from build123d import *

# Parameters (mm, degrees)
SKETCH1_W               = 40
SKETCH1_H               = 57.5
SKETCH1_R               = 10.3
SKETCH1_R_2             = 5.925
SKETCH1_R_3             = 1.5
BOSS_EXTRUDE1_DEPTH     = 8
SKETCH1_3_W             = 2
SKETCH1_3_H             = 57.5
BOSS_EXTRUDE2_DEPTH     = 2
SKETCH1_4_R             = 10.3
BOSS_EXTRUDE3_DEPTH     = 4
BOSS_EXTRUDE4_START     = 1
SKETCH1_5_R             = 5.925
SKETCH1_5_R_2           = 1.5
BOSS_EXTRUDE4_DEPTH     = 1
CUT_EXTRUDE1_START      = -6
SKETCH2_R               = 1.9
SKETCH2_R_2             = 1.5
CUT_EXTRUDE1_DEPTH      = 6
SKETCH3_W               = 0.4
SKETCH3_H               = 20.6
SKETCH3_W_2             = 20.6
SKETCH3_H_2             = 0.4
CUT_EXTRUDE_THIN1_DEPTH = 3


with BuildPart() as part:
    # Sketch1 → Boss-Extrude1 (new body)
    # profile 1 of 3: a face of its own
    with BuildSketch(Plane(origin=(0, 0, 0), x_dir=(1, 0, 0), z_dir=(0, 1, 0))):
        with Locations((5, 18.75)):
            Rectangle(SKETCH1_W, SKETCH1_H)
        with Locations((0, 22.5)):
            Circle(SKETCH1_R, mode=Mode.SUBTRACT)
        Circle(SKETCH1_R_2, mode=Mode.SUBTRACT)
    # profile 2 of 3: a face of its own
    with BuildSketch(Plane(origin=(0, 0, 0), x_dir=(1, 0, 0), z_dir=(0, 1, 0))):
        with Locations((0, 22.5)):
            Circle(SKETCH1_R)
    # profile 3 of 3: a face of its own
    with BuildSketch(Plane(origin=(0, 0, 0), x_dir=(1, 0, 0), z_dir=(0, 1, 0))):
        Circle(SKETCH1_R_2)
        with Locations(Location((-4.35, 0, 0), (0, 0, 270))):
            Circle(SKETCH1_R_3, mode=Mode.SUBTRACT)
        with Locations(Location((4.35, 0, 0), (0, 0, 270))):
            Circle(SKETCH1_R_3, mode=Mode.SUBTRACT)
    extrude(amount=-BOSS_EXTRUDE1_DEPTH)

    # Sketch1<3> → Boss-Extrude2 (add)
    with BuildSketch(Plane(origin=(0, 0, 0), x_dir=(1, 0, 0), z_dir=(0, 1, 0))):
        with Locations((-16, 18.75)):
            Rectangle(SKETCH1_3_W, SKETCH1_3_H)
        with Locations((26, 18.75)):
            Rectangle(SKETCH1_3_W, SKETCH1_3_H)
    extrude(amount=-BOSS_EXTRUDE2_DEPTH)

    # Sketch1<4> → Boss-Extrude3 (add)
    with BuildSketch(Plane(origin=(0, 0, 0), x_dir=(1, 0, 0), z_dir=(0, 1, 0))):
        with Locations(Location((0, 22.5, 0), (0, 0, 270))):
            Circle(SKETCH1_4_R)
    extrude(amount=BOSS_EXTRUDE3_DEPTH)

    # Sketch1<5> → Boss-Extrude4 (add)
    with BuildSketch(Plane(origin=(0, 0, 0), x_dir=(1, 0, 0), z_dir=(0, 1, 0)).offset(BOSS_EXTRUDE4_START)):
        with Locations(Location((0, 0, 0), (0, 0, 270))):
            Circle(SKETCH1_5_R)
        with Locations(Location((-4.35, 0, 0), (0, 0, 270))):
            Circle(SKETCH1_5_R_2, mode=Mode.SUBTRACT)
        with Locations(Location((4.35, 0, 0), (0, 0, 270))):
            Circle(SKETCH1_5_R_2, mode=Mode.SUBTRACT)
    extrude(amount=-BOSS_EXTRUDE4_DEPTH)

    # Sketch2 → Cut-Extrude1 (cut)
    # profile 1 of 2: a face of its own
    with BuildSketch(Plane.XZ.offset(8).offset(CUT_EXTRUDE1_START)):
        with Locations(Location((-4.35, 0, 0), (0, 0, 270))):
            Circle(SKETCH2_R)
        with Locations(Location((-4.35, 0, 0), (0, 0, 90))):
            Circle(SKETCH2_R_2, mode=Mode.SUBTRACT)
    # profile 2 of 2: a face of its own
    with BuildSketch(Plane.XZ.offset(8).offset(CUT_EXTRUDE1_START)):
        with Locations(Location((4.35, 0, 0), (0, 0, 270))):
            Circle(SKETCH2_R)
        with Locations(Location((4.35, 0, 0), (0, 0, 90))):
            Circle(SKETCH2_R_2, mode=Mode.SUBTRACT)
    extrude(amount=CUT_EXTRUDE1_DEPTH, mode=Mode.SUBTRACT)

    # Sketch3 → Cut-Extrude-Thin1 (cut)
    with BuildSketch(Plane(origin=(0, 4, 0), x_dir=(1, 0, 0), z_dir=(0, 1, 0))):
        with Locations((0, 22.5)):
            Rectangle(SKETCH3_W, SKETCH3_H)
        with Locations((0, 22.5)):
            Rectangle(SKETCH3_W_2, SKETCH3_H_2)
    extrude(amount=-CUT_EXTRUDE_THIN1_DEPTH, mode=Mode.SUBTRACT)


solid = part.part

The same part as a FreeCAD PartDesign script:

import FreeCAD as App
import Part
import Sketcher

V = App.Vector


def add_polygon(sketch, points):
    """Adds a closed chain of lines whose ends are joined by coincident constraints."""
    first, n = sketch.GeometryCount, len(points)
    for a, b in zip(points, points[1:] + points[:1]):
        sketch.addGeometry(Part.LineSegment(App.Vector(*a, 0), App.Vector(*b, 0)), False)
    for i in range(n):
        sketch.addConstraint(Sketcher.Constraint("Coincident", first + i, 2, first + (i + 1) % n, 1))

doc = App.newDocument("Part")
body = doc.addObject("PartDesign::Body", "Body")

# Sketch on XZ plane
sketch1 = body.newObject("Sketcher::SketchObject", "Sketch")
sketch1.AttachmentSupport = (doc.getObject("XZ_Plane"), [""])
sketch1.MapMode = "FlatFace"
add_polygon(sketch1, [(-15, -47.5), (-15, 10), (25, 10), (25, -47.5)])  # lines 0-3
sketch1.addGeometry(Part.Circle(V(4.3, 0, 0), V(0, 0, 1), 1.5), False)  # 4
sketch1.addGeometry(Part.Circle(V(-4.3, 0, 0), V(0, 0, 1), 1.5), False)  # 5
sketch1.addConstraint(Sketcher.Constraint("Vertical", 0))
sketch1.addConstraint(Sketcher.Constraint("Horizontal", 1))
sketch1.addConstraint(Sketcher.Constraint("Vertical", 2))
sketch1.addConstraint(Sketcher.Constraint("Horizontal", 3))
sketch1.addConstraint(Sketcher.Constraint("Equal", 4, 5))
sketch1.addConstraint(Sketcher.Constraint("Symmetric", 4, 3, 5, 3, -1, 1))
sketch1.addConstraint(Sketcher.Constraint("PointOnObject", 4, 3, -1))
sketch1.addConstraint(Sketcher.Constraint("Diameter", 4, 3.0))
sketch1.addConstraint(Sketcher.Constraint("DistanceX", 1, 1, 1, 2, 40.0))
sketch1.addConstraint(Sketcher.Constraint("DistanceY", 0, 1, 0, 2, 57.5))
sketch1.addConstraint(Sketcher.Constraint("DistanceX", 0, 2, -1, 1, 15.0))
sketch1.addConstraint(Sketcher.Constraint("DistanceY", -1, 1, 0, 2, 10.0))
sketch1.addConstraint(Sketcher.Constraint("DistanceX", 5, 3, 4, 3, 8.7))
pad1 = body.newObject("PartDesign::Pad", "Pad")
pad1.Profile = sketch1
pad1.Length = 8

# Sketch on XZ plane
sketch2 = body.newObject("Sketcher::SketchObject", "Sketch001")
sketch2.AttachmentSupport = (doc.getObject("XZ_Plane"), [""])
sketch2.MapMode = "FlatFace"
add_polygon(sketch2, [(-17, -47.5), (-17, 10), (-15, 10), (-15, -47.5)])  # lines 0-3
add_polygon(sketch2, [(25, -47.5), (25, 10), (27, 10), (27, -47.5)])  # lines 4-7
sketch2.addConstraint(Sketcher.Constraint("Vertical", 0))
sketch2.addConstraint(Sketcher.Constraint("Horizontal", 1))
sketch2.addConstraint(Sketcher.Constraint("Vertical", 2))
sketch2.addConstraint(Sketcher.Constraint("Horizontal", 3))
sketch2.addConstraint(Sketcher.Constraint("Vertical", 4))
sketch2.addConstraint(Sketcher.Constraint("Horizontal", 5))
sketch2.addConstraint(Sketcher.Constraint("Vertical", 6))
sketch2.addConstraint(Sketcher.Constraint("Horizontal", 7))
sketch2.addConstraint(Sketcher.Constraint("Horizontal", 1, 2, 4, 2))
sketch2.addConstraint(Sketcher.Constraint("Horizontal", 3, 2, 6, 2))
sketch2.addConstraint(Sketcher.Constraint("Equal", 3, 5))
sketch2.addConstraint(Sketcher.Constraint("DistanceX", 1, 1, 1, 2, 2.0))
sketch2.addConstraint(Sketcher.Constraint("DistanceY", 0, 1, 0, 2, 57.5))
sketch2.addConstraint(Sketcher.Constraint("DistanceX", 0, 2, -1, 1, 17.0))
sketch2.addConstraint(Sketcher.Constraint("DistanceY", -1, 1, 0, 2, 10.0))
sketch2.addConstraint(Sketcher.Constraint("DistanceX", -1, 1, 4, 2, 25.0))
pad2 = body.newObject("PartDesign::Pad", "Pad001")
pad2.Profile = sketch2
pad2.Length = 2

# Sketch on XZ plane
sketch3 = body.newObject("Sketcher::SketchObject", "Sketch002")
sketch3.AttachmentSupport = (doc.getObject("XZ_Plane"), [""])
sketch3.MapMode = "FlatFace"
sketch3.addGeometry(Part.Circle(V(0, -22, 0), V(0, 0, 1), 10), False)
sketch3.addConstraint(Sketcher.Constraint("PointOnObject", 0, 3, -2))
sketch3.addConstraint(Sketcher.Constraint("Diameter", 0, 20.6))
sketch3.addConstraint(Sketcher.Constraint("DistanceY", 0, 3, -1, 1, 22.5))
pad3 = body.newObject("PartDesign::Pad", "Pad002")
pad3.Profile = sketch3
pad3.Length = 4
pad3.Reversed = True

# Sketch on XZ plane
sketch4 = body.newObject("Sketcher::SketchObject", "Sketch003")
sketch4.AttachmentSupport = (doc.getObject("XZ_Plane"), [""])
sketch4.MapMode = "FlatFace"
sketch4.AttachmentOffset = App.Placement(V(0, 0, -1), App.Rotation())
sketch4.addGeometry(Part.Circle(V(0, 0, 0), V(0, 0, 1), 5.9), False)
sketch4.addGeometry(Part.Circle(V(-4.3, 0, 0), V(0, 0, 1), 1.5), False)
sketch4.addGeometry(Part.Circle(V(4.3, 0, 0), V(0, 0, 1), 1.5), False)
sketch4.addConstraint(Sketcher.Constraint("Coincident", 0, 3, -1, 1))
sketch4.addConstraint(Sketcher.Constraint("Equal", 1, 2))
sketch4.addConstraint(Sketcher.Constraint("Symmetric", 1, 3, 2, 3, -1, 1))
sketch4.addConstraint(Sketcher.Constraint("PointOnObject", 1, 3, -1))
sketch4.addConstraint(Sketcher.Constraint("Diameter", 1, 3.0))
sketch4.addConstraint(Sketcher.Constraint("Diameter", 0, 11.85))
sketch4.addConstraint(Sketcher.Constraint("DistanceX", 1, 3, 2, 3, 8.7))
pad4 = body.newObject("PartDesign::Pad", "Pad003")
pad4.Profile = sketch4
pad4.Length = 1

# Sketch on XZ plane
sketch5 = body.newObject("Sketcher::SketchObject", "Sketch004")
sketch5.AttachmentSupport = (doc.getObject("XZ_Plane"), [""])
sketch5.MapMode = "FlatFace"
sketch5.AttachmentOffset = App.Placement(V(0, 0, 2), App.Rotation())
sketch5.addGeometry(Part.Circle(V(-4.3, 0, 0), V(0, 0, 1), 1.9), False)
sketch5.addGeometry(Part.Circle(V(-4.3, 0, 0), V(0, 0, 1), 1.5), False)
sketch5.addGeometry(Part.Circle(V(4.3, 0, 0), V(0, 0, 1), 1.9), False)
sketch5.addGeometry(Part.Circle(V(4.3, 0, 0), V(0, 0, 1), 1.5), False)
sketch5.addConstraint(Sketcher.Constraint("Coincident", 1, 3, 0, 3))
sketch5.addConstraint(Sketcher.Constraint("Coincident", 3, 3, 2, 3))
sketch5.addConstraint(Sketcher.Constraint("Equal", 0, 2))
sketch5.addConstraint(Sketcher.Constraint("Equal", 1, 3))
sketch5.addConstraint(Sketcher.Constraint("Symmetric", 0, 3, 2, 3, -1, 1))
sketch5.addConstraint(Sketcher.Constraint("PointOnObject", 0, 3, -1))
sketch5.addConstraint(Sketcher.Constraint("Diameter", 1, 3.0))
sketch5.addConstraint(Sketcher.Constraint("Diameter", 0, 3.8))
sketch5.addConstraint(Sketcher.Constraint("DistanceX", 0, 3, 2, 3, 8.7))
pocket1 = body.newObject("PartDesign::Pocket", "Pocket")
pocket1.Profile = sketch5
pocket1.Length = 6
pocket1.Reversed = True

# Sketch on XZ plane
sketch6 = body.newObject("Sketcher::SketchObject", "Sketch005")
sketch6.AttachmentSupport = (doc.getObject("XZ_Plane"), [""])
sketch6.MapMode = "FlatFace"
sketch6.AttachmentOffset = App.Placement(V(0, 0, -4), App.Rotation())
add_polygon(sketch6, [(-0.2, -22.3), (-0.2, -12.2), (0.2, -12.2), (0.2, -22.3), (10.3, -22.3), (10.3, -22.7), (0.2, -22.7), (0.2, -32.8), (-0.2, -32.8), (-0.2, -22.7), (-10.3, -22.7), (-10.3, -22.3)])  # lines 0-11
sketch6.addConstraint(Sketcher.Constraint("Vertical", 0))
sketch6.addConstraint(Sketcher.Constraint("Horizontal", 1))
sketch6.addConstraint(Sketcher.Constraint("Vertical", 2))
sketch6.addConstraint(Sketcher.Constraint("Horizontal", 3))
sketch6.addConstraint(Sketcher.Constraint("Vertical", 4))
sketch6.addConstraint(Sketcher.Constraint("Horizontal", 5))
sketch6.addConstraint(Sketcher.Constraint("Vertical", 6))
sketch6.addConstraint(Sketcher.Constraint("Horizontal", 7))
sketch6.addConstraint(Sketcher.Constraint("Vertical", 8))
sketch6.addConstraint(Sketcher.Constraint("Horizontal", 9))
sketch6.addConstraint(Sketcher.Constraint("Vertical", 10))
sketch6.addConstraint(Sketcher.Constraint("Horizontal", 11))
sketch6.addConstraint(Sketcher.Constraint("Symmetric", 5, 2, 8, 2, -2))
sketch6.addConstraint(Sketcher.Constraint("Symmetric", 3, 2, 10, 2, -2))
sketch6.addConstraint(Sketcher.Constraint("Vertical", 2, 2, 5, 2))
sketch6.addConstraint(Sketcher.Constraint("Vertical", 0, 2, 7, 2))
sketch6.addConstraint(Sketcher.Constraint("Equal", 11, 0))
sketch6.addConstraint(Sketcher.Constraint("Equal", 7, 4))
sketch6.addConstraint(Sketcher.Constraint("Equal", 2, 6))
sketch6.addConstraint(Sketcher.Constraint("DistanceX", 1, 1, 1, 2, 0.4))
sketch6.addConstraint(Sketcher.Constraint("DistanceX", 3, 1, 3, 2, 10.1))
sketch6.addConstraint(Sketcher.Constraint("DistanceY", 0, 2, -1, 1, 12.2))
pocket2 = body.newObject("PartDesign::Pocket", "Pocket001")
pocket2.Profile = sketch6
pocket2.Length = 3
pocket2.Reversed = True

doc.recompute()
